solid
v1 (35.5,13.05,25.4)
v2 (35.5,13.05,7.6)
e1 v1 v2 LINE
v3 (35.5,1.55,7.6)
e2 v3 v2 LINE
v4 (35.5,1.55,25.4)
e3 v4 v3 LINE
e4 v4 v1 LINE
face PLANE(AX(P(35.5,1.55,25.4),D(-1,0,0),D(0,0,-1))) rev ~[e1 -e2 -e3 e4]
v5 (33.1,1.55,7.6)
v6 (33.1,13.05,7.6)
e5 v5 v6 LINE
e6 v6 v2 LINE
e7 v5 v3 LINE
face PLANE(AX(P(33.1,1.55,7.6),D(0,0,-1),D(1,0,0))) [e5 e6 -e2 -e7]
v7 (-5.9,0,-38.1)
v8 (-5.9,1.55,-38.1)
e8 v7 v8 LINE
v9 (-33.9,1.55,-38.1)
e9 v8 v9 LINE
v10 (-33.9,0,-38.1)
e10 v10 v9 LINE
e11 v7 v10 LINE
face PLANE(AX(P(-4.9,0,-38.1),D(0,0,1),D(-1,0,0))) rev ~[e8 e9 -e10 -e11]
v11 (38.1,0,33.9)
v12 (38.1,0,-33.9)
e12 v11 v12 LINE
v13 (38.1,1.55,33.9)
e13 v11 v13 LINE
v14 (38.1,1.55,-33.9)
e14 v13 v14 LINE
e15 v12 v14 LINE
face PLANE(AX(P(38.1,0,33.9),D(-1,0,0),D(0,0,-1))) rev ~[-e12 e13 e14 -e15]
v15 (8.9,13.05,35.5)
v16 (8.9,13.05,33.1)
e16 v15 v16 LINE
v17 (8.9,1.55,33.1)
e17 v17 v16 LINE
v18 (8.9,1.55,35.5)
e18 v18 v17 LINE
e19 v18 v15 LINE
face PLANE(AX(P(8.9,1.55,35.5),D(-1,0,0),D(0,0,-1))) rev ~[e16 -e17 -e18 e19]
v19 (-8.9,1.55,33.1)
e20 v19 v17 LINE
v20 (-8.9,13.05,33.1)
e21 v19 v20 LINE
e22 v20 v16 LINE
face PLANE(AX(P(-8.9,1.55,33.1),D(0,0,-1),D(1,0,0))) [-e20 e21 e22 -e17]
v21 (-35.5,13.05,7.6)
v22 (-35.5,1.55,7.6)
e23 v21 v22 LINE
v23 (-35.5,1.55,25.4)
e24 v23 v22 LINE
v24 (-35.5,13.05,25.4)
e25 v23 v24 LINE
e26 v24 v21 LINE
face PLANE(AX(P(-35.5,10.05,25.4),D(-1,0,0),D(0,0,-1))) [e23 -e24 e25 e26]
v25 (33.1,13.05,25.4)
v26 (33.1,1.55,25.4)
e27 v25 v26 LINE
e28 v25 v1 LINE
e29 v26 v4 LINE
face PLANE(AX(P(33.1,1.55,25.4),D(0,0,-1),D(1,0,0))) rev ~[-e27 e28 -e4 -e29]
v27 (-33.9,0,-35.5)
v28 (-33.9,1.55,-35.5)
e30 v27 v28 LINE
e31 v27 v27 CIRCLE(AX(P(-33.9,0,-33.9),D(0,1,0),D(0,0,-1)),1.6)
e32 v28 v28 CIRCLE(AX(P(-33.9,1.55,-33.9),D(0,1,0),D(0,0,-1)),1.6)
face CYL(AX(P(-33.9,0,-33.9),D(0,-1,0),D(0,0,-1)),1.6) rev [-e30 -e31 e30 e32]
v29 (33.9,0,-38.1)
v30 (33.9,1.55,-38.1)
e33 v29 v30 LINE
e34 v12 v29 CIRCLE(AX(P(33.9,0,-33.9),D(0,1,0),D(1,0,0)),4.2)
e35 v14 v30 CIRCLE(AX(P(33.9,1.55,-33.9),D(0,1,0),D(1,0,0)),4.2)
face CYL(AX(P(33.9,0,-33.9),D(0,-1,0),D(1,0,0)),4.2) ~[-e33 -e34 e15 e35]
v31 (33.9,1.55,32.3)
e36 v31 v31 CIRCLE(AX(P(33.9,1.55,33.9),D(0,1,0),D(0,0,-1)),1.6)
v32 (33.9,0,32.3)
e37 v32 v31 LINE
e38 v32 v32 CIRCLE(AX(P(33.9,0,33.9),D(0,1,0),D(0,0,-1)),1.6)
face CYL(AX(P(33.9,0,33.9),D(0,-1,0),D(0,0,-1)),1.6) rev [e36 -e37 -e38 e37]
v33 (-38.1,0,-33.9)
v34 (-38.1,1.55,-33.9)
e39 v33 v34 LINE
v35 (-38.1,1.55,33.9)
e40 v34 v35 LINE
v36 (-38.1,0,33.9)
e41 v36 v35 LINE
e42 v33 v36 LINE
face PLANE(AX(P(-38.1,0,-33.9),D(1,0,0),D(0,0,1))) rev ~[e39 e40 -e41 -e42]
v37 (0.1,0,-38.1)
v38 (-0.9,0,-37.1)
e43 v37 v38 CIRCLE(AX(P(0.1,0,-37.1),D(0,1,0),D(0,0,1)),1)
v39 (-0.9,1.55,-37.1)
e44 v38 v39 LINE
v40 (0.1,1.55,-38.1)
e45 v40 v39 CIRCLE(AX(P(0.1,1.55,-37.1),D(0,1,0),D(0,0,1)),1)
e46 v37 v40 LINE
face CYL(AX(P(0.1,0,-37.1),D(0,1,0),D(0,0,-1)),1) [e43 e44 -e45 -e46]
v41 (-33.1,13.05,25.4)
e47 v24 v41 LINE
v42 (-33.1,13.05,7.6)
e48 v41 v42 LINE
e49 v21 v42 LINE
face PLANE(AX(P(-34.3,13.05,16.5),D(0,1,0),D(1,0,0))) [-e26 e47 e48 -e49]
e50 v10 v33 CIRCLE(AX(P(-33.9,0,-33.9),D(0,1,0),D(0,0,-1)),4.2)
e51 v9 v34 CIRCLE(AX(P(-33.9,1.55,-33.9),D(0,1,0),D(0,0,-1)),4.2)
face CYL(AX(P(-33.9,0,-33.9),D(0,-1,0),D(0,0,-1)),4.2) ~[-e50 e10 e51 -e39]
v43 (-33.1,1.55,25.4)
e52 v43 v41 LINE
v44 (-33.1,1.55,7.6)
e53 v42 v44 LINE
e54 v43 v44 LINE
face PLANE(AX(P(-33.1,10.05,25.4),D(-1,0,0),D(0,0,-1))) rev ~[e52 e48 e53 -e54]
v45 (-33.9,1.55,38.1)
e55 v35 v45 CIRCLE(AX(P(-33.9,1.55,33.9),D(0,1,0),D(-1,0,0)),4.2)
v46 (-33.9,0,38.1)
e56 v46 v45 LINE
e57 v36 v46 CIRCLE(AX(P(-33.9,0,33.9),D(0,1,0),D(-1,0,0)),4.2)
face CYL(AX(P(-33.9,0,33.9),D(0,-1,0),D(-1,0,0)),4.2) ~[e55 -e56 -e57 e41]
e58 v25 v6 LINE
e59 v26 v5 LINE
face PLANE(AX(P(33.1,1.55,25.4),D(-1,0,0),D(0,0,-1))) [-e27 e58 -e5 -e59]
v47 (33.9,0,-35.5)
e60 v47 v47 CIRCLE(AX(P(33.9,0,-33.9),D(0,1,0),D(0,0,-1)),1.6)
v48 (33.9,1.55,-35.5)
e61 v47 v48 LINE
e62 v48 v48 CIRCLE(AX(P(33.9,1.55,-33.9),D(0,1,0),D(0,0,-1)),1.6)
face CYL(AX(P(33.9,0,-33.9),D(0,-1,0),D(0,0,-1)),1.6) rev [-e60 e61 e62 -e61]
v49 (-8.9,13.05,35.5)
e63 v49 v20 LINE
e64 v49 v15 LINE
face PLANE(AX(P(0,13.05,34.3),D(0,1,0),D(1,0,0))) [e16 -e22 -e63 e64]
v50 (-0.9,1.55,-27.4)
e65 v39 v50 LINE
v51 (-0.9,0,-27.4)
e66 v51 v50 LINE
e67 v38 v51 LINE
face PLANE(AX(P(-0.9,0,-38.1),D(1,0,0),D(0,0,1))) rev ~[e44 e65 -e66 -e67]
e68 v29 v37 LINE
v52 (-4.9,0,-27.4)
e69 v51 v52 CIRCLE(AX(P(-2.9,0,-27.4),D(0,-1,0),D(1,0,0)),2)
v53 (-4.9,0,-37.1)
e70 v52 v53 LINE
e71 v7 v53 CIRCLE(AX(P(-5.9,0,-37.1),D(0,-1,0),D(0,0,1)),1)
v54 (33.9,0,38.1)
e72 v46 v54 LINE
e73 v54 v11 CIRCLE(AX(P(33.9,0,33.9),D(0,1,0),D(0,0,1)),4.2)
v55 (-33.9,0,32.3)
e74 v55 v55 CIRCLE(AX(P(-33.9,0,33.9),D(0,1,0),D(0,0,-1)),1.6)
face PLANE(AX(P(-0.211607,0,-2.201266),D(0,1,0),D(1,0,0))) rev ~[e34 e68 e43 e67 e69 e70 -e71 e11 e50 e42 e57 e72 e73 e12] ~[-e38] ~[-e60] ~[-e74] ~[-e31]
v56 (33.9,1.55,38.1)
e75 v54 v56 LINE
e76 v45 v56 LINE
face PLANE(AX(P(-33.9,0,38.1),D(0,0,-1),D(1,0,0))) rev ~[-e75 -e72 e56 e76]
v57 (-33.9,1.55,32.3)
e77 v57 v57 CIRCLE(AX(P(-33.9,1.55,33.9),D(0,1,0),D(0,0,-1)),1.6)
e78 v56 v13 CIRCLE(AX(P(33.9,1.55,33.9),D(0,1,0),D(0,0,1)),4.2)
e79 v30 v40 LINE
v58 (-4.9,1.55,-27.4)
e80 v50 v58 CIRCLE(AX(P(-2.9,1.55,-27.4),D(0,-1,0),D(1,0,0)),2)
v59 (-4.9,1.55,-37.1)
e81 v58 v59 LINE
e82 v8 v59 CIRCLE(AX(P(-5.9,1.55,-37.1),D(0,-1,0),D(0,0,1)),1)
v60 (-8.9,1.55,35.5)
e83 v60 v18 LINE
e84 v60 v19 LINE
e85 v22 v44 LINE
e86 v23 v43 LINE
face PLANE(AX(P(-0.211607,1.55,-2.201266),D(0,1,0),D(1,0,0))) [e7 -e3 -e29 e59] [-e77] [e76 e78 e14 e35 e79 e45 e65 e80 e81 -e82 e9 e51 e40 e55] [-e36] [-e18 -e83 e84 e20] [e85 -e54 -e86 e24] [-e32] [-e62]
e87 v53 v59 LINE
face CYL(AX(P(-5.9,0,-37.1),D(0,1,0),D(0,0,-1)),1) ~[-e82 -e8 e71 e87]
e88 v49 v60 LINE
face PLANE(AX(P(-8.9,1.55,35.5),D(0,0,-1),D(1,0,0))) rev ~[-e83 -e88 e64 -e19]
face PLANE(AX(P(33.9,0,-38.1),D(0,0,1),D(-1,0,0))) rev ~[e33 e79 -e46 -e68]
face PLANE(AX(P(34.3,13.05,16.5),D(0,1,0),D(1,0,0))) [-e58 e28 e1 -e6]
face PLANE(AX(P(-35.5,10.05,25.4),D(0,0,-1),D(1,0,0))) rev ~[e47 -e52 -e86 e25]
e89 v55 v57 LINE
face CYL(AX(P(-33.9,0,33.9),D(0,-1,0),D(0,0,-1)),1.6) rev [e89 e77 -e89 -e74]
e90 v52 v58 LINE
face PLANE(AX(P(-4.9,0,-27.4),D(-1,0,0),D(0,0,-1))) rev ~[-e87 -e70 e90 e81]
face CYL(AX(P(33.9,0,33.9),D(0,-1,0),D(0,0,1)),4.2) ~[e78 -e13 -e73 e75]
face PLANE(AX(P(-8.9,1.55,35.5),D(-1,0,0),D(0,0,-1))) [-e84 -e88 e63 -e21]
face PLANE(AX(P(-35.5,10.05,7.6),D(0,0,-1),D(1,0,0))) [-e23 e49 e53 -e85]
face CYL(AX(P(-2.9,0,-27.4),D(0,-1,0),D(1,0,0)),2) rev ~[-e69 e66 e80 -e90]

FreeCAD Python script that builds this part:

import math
import FreeCAD as App
import Part
import Sketcher
from FreeCAD import Vector
Q = App.Units.Quantity


def edges_at(feature, points):
    """Names of the edges that pass closest to the given points."""
    edges = feature.Shape.Edges
    near = lambda p: min(range(len(edges)), key=lambda i: edges[i].distToShape(Part.Vertex(*p))[0])
    return sorted({f"Edge{near(p) + 1}" for p in points})


def add_polygon(sketch, points):
    """Adds a closed chain of lines whose ends are joined by coincident constraints."""
    first, n = sketch.GeometryCount, len(points)
    for a, b in zip(points, points[1:] + points[:1]):
        sketch.addGeometry(Part.LineSegment(App.Vector(*a, 0), App.Vector(*b, 0)), False)
    for i in range(n):
        sketch.addConstraint(Sketcher.Constraint("Coincident", first + i, 2, first + (i + 1) % n, 1))

doc = App.newDocument("Part")
body = doc.addObject("PartDesign::Body", "Body")

# Sketch on XZ plane
sketch1 = doc.addObject("Sketcher::SketchObject", "Sketch")
body.addObject(sketch1)
sketch1.AttachmentSupport = (doc.XZ_Plane, [""])
sketch1.MapMode = "FlatFace"
sketch1.addGeometry(Part.ArcOfCircle(Part.Circle(Vector(-33.9, 33.9, 0), Vector(0, 0, 1), 4.2), math.radians(90), math.radians(180)), False)
sketch1.addGeometry(Part.LineSegment(Vector(-33.9, 38.1, 0), Vector(33.9, 38.1, 0)), False)
sketch1.addGeometry(Part.ArcOfCircle(Part.Circle(Vector(33.9, 33.9, 0), Vector(0, 0, 1), 4.2), math.radians(0), math.radians(90)), False)
sketch1.addGeometry(Part.LineSegment(Vector(38.1, 33.9, 0), Vector(38.1, -33.9, 0)), False)
sketch1.addGeometry(Part.ArcOfCircle(Part.Circle(Vector(33.9, -33.9, 0), Vector(0, 0, 1), 4.2), math.radians(-90), math.radians(0)), False)
sketch1.addGeometry(Part.LineSegment(Vector(33.9, -38.1, 0), Vector(-0.9, -38.1, 0)), False)
sketch1.addGeometry(Part.LineSegment(Vector(-0.9, -38.1, 0), Vector(-0.9, -27.4, 0)), False)
sketch1.addGeometry(Part.ArcOfCircle(Part.Circle(Vector(-2.9, -27.4, 0), Vector(0, 0, 1), 2), math.radians(0), math.radians(180)), False)
sketch1.addGeometry(Part.LineSegment(Vector(-4.9, -27.4, 0), Vector(-4.9, -38.1, 0)), False)
sketch1.addGeometry(Part.LineSegment(Vector(-4.9, -38.1, 0), Vector(-33.9, -38.1, 0)), False)
sketch1.addGeometry(Part.ArcOfCircle(Part.Circle(Vector(-33.9, -33.9, 0), Vector(0, 0, 1), 4.2), math.radians(180), math.radians(270)), False)
sketch1.addGeometry(Part.LineSegment(Vector(-38.1, -33.9, 0), Vector(-38.1, 33.9, 0)), False)
sketch1.addGeometry(Part.Circle(Vector(-33.9, 33.9, 0), Vector(0, 0, 1), 1.6), False)
sketch1.addGeometry(Part.Circle(Vector(33.9, 33.9, 0), Vector(0, 0, 1), 1.6), False)
sketch1.addGeometry(Part.Circle(Vector(-33.9, -33.9, 0), Vector(0, 0, 1), 1.6), False)
sketch1.addGeometry(Part.Circle(Vector(33.9, -33.9, 0), Vector(0, 0, 1), 1.6), False)
sketch1.addConstraint(Sketcher.Constraint("Tangent", 0, 1, 1, 1))
sketch1.addConstraint(Sketcher.Constraint("Tangent", 1, 2, 2, 2))
sketch1.addConstraint(Sketcher.Constraint("Tangent", 2, 1, 3, 1))
sketch1.addConstraint(Sketcher.Constraint("Tangent", 3, 2, 4, 2))
sketch1.addConstraint(Sketcher.Constraint("Tangent", 4, 1, 5, 1))
sketch1.addConstraint(Sketcher.Constraint("Coincident", 5, 2, 6, 1))
sketch1.addConstraint(Sketcher.Constraint("Tangent", 6, 2, 7, 1))
sketch1.addConstraint(Sketcher.Constraint("Tangent", 7, 2, 8, 1))
sketch1.addConstraint(Sketcher.Constraint("Coincident", 8, 2, 9, 1))
sketch1.addConstraint(Sketcher.Constraint("Tangent", 9, 2, 10, 2))
sketch1.addConstraint(Sketcher.Constraint("Tangent", 10, 1, 11, 1))
sketch1.addConstraint(Sketcher.Constraint("Tangent", 11, 2, 0, 2))
sketch1.addConstraint(Sketcher.Constraint("Horizontal", 1))
sketch1.addConstraint(Sketcher.Constraint("Vertical", 3))
sketch1.addConstraint(Sketcher.Constraint("Horizontal", 5))
sketch1.addConstraint(Sketcher.Constraint("Vertical", 6))
sketch1.addConstraint(Sketcher.Constraint("Vertical", 8))
sketch1.addConstraint(Sketcher.Constraint("Horizontal", 9))
sketch1.addConstraint(Sketcher.Constraint("Vertical", 11))
sketch1.addConstraint(Sketcher.Constraint("Coincident", 12, 3, 0, 3))
sketch1.addConstraint(Sketcher.Constraint("Coincident", 13, 3, 2, 3))
sketch1.addConstraint(Sketcher.Constraint("Coincident", 14, 3, 10, 3))
sketch1.addConstraint(Sketcher.Constraint("Coincident", 15, 3, 4, 3))
sketch1.addConstraint(Sketcher.Constraint("Equal", 0, 2))
sketch1.addConstraint(Sketcher.Constraint("Equal", 2, 4))
sketch1.addConstraint(Sketcher.Constraint("Equal", 4, 10))
sketch1.addConstraint(Sketcher.Constraint("Equal", 12, 13))
sketch1.addConstraint(Sketcher.Constraint("Equal", 13, 14))
sketch1.addConstraint(Sketcher.Constraint("Equal", 14, 15))
sketch1.addConstraint(Sketcher.Constraint("Symmetric", 0, 3, 4, 3, -1, 1))
sketch1.addConstraint(Sketcher.Constraint("Horizontal", 4, 3, 10, 3))
sketch1.addConstraint(Sketcher.Constraint("Equal", 1, 3))
sketch1.addConstraint(Sketcher.Constraint("Radius", 7, Q("2 mm")))
sketch1.addConstraint(Sketcher.Constraint("Diameter", 12, Q("3.2 mm")))
sketch1.addConstraint(Sketcher.Constraint("Radius", 0, Q("4.2 mm")))
sketch1.addConstraint(Sketcher.Constraint("DistanceX", 9, 2, 9, 1, Q("29 mm")))
sketch1.addConstraint(Sketcher.Constraint("DistanceX", 1, 1, 1, 2, Q("67.8 mm")))
sketch1.addConstraint(Sketcher.Constraint("DistanceY", 6, 1, 6, 2, Q("10.7 mm")))
pad1 = doc.addObject("PartDesign::Pad", "Pad")
body.addObject(pad1)
pad1.Profile = sketch1
pad1.Length = 1.55
pad1.Reversed = True
doc.recompute()

fillet = doc.addObject("PartDesign::Fillet", "Fillet")
body.addObject(fillet)
fillet.Base = (pad1, edges_at(pad1, [(-0.9, 0.775, -38.1), (-4.9, 0.775, -38.1)]))
fillet.Radius = 1

# Sketch on XZ plane
sketch2 = doc.addObject("Sketcher::SketchObject", "Sketch001")
body.addObject(sketch2)
sketch2.AttachmentSupport = (doc.XZ_Plane, [""])
sketch2.MapMode = "FlatFace"
sketch2.AttachmentOffset = App.Placement(Vector(0, 0, -1.55), App.Rotation())
add_polygon(sketch2, [(-35.5, 7.6), (-35.5, 25.4), (-33.1, 25.4), (-33.1, 7.6)])  # lines 0-3
add_polygon(sketch2, [(33.1, 7.6), (33.1, 25.4), (35.5, 25.4), (35.5, 7.6)])  # lines 4-7
add_polygon(sketch2, [(-8.9, 33.1), (-8.9, 35.5), (8.9, 35.5), (8.9, 33.1)])  # lines 8-11
sketch2.addConstraint(Sketcher.Constraint("Vertical", 0))
sketch2.addConstraint(Sketcher.Constraint("Horizontal", 1))
sketch2.addConstraint(Sketcher.Constraint("Vertical", 2))
sketch2.addConstraint(Sketcher.Constraint("Horizontal", 3))
sketch2.addConstraint(Sketcher.Constraint("Vertical", 4))
sketch2.addConstraint(Sketcher.Constraint("Horizontal", 5))
sketch2.addConstraint(Sketcher.Constraint("Vertical", 6))
sketch2.addConstraint(Sketcher.Constraint("Horizontal", 7))
sketch2.addConstraint(Sketcher.Constraint("Vertical", 8))
sketch2.addConstraint(Sketcher.Constraint("Horizontal", 9))
sketch2.addConstraint(Sketcher.Constraint("Vertical", 10))
sketch2.addConstraint(Sketcher.Constraint("Horizontal", 11))
sketch2.addConstraint(Sketcher.Constraint("Symmetric", 1, 2, 4, 2, -2))
sketch2.addConstraint(Sketcher.Constraint("Symmetric", 3, 2, 6, 2, -2))
sketch2.addConstraint(Sketcher.Constraint("Equal", 11, 0))
sketch2.addConstraint(Sketcher.Constraint("Equal", 7, 8))
sketch2.addConstraint(Sketcher.Constraint("DistanceX", 1, 1, 1, 2, Q("2.4 mm")))
sketch2.addConstraint(Sketcher.Constraint("DistanceX", 9, 1, 9, 2, Q("17.8 mm")))
sketch2.addConstraint(Sketcher.Constraint("DistanceX", 0, 2, 5, 2, Q("71 mm")))
sketch2.addConstraint(Sketcher.Constraint("DistanceX", 8, 2, 4, 2, Q("42 mm")))
sketch2.addConstraint(Sketcher.Constraint("DistanceY", -1, 1, 0, 2, Q("25.4 mm")))
sketch2.addConstraint(Sketcher.Constraint("DistanceY", -1, 1, 8, 2, Q("35.5 mm")))
pad2 = doc.addObject("PartDesign::Pad", "Pad001")
body.addObject(pad2)
pad2.Profile = sketch2
pad2.Length = 8.5
pad2.Reversed = True

# Sketch on XZ plane
sketch3 = doc.addObject("Sketcher::SketchObject", "Sketch002")
body.addObject(sketch3)
sketch3.AttachmentSupport = (doc.XZ_Plane, [""])
sketch3.MapMode = "FlatFace"
sketch3.AttachmentOffset = App.Placement(Vector(0, 0, -10.05), App.Rotation())
add_polygon(sketch3, [(-35.5, 7.6), (-35.5, 25.4), (-33.1, 25.4), (-33.1, 7.6)])  # lines 0-3
add_polygon(sketch3, [(-8.9, 33.1), (-8.9, 35.5), (8.9, 35.5), (8.9, 33.1)])  # lines 4-7
add_polygon(sketch3, [(33.1, 7.6), (33.1, 25.4), (35.5, 25.4), (35.5, 7.6)])  # lines 8-11
sketch3.addConstraint(Sketcher.Constraint("Vertical", 0))
sketch3.addConstraint(Sketcher.Constraint("Horizontal", 1))
sketch3.addConstraint(Sketcher.Constraint("Vertical", 2))
sketch3.addConstraint(Sketcher.Constraint("Horizontal", 3))
sketch3.addConstraint(Sketcher.Constraint("Vertical", 4))
sketch3.addConstraint(Sketcher.Constraint("Horizontal", 5))
sketch3.addConstraint(Sketcher.Constraint("Vertical", 6))
sketch3.addConstraint(Sketcher.Constraint("Horizontal", 7))
sketch3.addConstraint(Sketcher.Constraint("Vertical", 8))
sketch3.addConstraint(Sketcher.Constraint("Horizontal", 9))
sketch3.addConstraint(Sketcher.Constraint("Vertical", 10))
sketch3.addConstraint(Sketcher.Constraint("Horizontal", 11))
sketch3.addConstraint(Sketcher.Constraint("Symmetric", 1, 2, 8, 2, -2))
sketch3.addConstraint(Sketcher.Constraint("Symmetric", 3, 2, 10, 2, -2))
sketch3.addConstraint(Sketcher.Constraint("Equal", 7, 0))
sketch3.addConstraint(Sketcher.Constraint("Equal", 11, 4))
sketch3.addConstraint(Sketcher.Constraint("DistanceX", 1, 1, 1, 2, Q("2.4 mm")))
sketch3.addConstraint(Sketcher.Constraint("DistanceX", 5, 1, 5, 2, Q("17.8 mm")))
sketch3.addConstraint(Sketcher.Constraint("DistanceX", 1, 2, 5, 2, Q("42 mm")))
sketch3.addConstraint(Sketcher.Constraint("DistanceX", 7, 2, 8, 2, Q("42 mm")))
sketch3.addConstraint(Sketcher.Constraint("DistanceY", -1, 1, 0, 2, Q("25.4 mm")))
sketch3.addConstraint(Sketcher.Constraint("DistanceY", -1, 1, 4, 2, Q("35.5 mm")))
pad3 = doc.addObject("PartDesign::Pad", "Pad002")
body.addObject(pad3)
pad3.Profile = sketch3
pad3.Length = 3
pad3.Reversed = True

doc.recompute()
